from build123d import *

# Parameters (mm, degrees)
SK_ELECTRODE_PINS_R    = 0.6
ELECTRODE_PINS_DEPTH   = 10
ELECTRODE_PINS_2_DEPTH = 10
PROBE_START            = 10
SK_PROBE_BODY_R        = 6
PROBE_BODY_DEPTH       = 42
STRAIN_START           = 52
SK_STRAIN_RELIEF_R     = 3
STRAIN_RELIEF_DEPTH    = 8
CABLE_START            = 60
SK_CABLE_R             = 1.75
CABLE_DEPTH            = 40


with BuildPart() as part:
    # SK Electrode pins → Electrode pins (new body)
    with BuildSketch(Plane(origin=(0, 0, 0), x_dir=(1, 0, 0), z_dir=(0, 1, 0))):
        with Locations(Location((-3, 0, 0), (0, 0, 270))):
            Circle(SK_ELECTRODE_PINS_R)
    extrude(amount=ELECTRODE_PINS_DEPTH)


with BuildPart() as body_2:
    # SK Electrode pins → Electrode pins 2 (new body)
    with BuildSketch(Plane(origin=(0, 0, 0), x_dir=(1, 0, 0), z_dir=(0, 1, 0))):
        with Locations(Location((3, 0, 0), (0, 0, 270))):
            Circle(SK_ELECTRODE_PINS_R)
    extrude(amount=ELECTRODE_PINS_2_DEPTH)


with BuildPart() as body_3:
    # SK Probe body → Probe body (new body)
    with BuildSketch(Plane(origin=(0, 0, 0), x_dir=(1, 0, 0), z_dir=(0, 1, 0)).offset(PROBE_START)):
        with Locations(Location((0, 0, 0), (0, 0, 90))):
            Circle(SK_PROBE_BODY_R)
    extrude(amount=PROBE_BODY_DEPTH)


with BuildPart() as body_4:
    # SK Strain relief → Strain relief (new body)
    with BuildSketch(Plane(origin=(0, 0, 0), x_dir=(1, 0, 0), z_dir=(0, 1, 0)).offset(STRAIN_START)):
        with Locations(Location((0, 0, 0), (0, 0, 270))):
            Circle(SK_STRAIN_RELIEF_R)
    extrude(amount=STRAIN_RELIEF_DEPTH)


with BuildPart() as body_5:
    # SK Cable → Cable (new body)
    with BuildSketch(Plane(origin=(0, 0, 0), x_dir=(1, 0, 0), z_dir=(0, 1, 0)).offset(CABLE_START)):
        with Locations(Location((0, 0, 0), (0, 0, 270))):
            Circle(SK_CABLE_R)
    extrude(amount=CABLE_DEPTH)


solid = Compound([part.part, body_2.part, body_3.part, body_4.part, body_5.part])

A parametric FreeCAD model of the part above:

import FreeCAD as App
import Part
import Sketcher

doc = App.newDocument("Part")
params = doc.addObject("Spreadsheet::Sheet", "Params")
for row, (alias, value) in enumerate([
    ("sketch1_diameter", "1.2 mm"),
    ("pad1_length", "10 mm"),
    ("sketch2_diameter", "1.2 mm"),
    ("pad2_length", "10 mm"),
    ("sketch3_diameter", "12 mm"),
    ("pad3_length", "42 mm"),
    ("sketch4_diameter", "6 mm"),
    ("pad4_length", "8 mm"),
    ("sketch5_diameter", "3.5 mm"),
    ("pad5_length", "40 mm"),
], start=1):
    params.set(f"A{row}", alias)
    params.set(f"B{row}", "=" + value)
    params.setAlias(f"B{row}", alias)

body = doc.addObject("PartDesign::Body", "Body")

sketch1 = body.newObject("Sketcher::SketchObject", "Sketch")
sketch1.AttachmentSupport = (doc.getObject("XZ_Plane"), [""])
sketch1.MapMode = "FlatFace"
sketch1.addGeometry(Part.Circle(App.Vector(-3, 0, 0), App.Vector(0, 0, 1), 0.6), False)
sketch1.addConstraint(Sketcher.Constraint("PointOnObject", 0, 3, -1))
sketch1.addConstraint(Sketcher.Constraint("Diameter", 0, 1.2))
sketch1.addConstraint(Sketcher.Constraint("DistanceX", 0, 3, -1, 1, 3.0))
sketch1.setExpression("Constraints[1]", "Params.sketch1_diameter")
pad1 = body.newObject("PartDesign::Pad", "Pad")
pad1.Profile = sketch1
pad1.setExpression("Length", "Params.pad1_length")
pad1.Reversed = True
body2 = doc.addObject("PartDesign::Body", "Body001")

sketch2 = body2.newObject("Sketcher::SketchObject", "Sketch001")
sketch2.AttachmentSupport = (doc.getObject("XZ_Plane001"), [""])
sketch2.MapMode = "FlatFace"
sketch2.addGeometry(Part.Circle(App.Vector(3, 0, 0), App.Vector(0, 0, 1), 0.6), False)
sketch2.addConstraint(Sketcher.Constraint("PointOnObject", 0, 3, -1))
sketch2.addConstraint(Sketcher.Constraint("Diameter", 0, 1.2))
sketch2.addConstraint(Sketcher.Constraint("DistanceX", -1, 1, 0, 3, 3.0))
sketch2.setExpression("Constraints[1]", "Params.sketch2_diameter")
pad2 = body2.newObject("PartDesign::Pad", "Pad001")
pad2.Profile = sketch2
pad2.setExpression("Length", "Params.pad2_length")
pad2.Reversed = True
body3 = doc.addObject("PartDesign::Body", "Body002")

sketch3 = body3.newObject("Sketcher::SketchObject", "Sketch002")
sketch3.AttachmentSupport = (doc.getObject("XZ_Plane002"), [""])
sketch3.MapMode = "FlatFace"
sketch3.AttachmentOffset = App.Placement(App.Vector(0, 0, -10), App.Rotation())
sketch3.addGeometry(Part.Circle(App.Vector(0, 0, 0), App.Vector(0, 0, 1), 6), False)
sketch3.addConstraint(Sketcher.Constraint("Coincident", 0, 3, -1, 1))
sketch3.addConstraint(Sketcher.Constraint("Diameter", 0, 12.0))
sketch3.setExpression("Constraints[1]", "Params.sketch3_diameter")
pad3 = body3.newObject("PartDesign::Pad", "Pad002")
pad3.Profile = sketch3
pad3.setExpression("Length", "Params.pad3_length")
pad3.Reversed = True
body4 = doc.addObject("PartDesign::Body", "Body003")

sketch4 = body4.newObject("Sketcher::SketchObject", "Sketch003")
sketch4.AttachmentSupport = (doc.getObject("XZ_Plane003"), [""])
sketch4.MapMode = "FlatFace"
sketch4.AttachmentOffset = App.Placement(App.Vector(0, 0, -52), App.Rotation())
sketch4.addGeometry(Part.Circle(App.Vector(0, 0, 0), App.Vector(0, 0, 1), 3), False)
sketch4.addConstraint(Sketcher.Constraint("Coincident", 0, 3, -1, 1))
sketch4.addConstraint(Sketcher.Constraint("Diameter", 0, 6.0))
sketch4.setExpression("Constraints[1]", "Params.sketch4_diameter")
pad4 = body4.newObject("PartDesign::Pad", "Pad003")
pad4.Profile = sketch4
pad4.setExpression("Length", "Params.pad4_length")
pad4.Reversed = True
body5 = doc.addObject("PartDesign::Body", "Body004")

sketch5 = body5.newObject("Sketcher::SketchObject", "Sketch004")
sketch5.AttachmentSupport = (doc.getObject("XZ_Plane004"), [""])
sketch5.MapMode = "FlatFace"
sketch5.AttachmentOffset = App.Placement(App.Vector(0, 0, -60), App.Rotation())
sketch5.addGeometry(Part.Circle(App.Vector(0, 0, 0), App.Vector(0, 0, 1), 1.75), False)
sketch5.addConstraint(Sketcher.Constraint("Coincident", 0, 3, -1, 1))
sketch5.addConstraint(Sketcher.Constraint("Diameter", 0, 3.5))
sketch5.setExpression("Constraints[1]", "Params.sketch5_diameter")
pad5 = body5.newObject("PartDesign::Pad", "Pad004")
pad5.Profile = sketch5
pad5.setExpression("Length", "Params.pad5_length")
pad5.Reversed = True

doc.recompute()
